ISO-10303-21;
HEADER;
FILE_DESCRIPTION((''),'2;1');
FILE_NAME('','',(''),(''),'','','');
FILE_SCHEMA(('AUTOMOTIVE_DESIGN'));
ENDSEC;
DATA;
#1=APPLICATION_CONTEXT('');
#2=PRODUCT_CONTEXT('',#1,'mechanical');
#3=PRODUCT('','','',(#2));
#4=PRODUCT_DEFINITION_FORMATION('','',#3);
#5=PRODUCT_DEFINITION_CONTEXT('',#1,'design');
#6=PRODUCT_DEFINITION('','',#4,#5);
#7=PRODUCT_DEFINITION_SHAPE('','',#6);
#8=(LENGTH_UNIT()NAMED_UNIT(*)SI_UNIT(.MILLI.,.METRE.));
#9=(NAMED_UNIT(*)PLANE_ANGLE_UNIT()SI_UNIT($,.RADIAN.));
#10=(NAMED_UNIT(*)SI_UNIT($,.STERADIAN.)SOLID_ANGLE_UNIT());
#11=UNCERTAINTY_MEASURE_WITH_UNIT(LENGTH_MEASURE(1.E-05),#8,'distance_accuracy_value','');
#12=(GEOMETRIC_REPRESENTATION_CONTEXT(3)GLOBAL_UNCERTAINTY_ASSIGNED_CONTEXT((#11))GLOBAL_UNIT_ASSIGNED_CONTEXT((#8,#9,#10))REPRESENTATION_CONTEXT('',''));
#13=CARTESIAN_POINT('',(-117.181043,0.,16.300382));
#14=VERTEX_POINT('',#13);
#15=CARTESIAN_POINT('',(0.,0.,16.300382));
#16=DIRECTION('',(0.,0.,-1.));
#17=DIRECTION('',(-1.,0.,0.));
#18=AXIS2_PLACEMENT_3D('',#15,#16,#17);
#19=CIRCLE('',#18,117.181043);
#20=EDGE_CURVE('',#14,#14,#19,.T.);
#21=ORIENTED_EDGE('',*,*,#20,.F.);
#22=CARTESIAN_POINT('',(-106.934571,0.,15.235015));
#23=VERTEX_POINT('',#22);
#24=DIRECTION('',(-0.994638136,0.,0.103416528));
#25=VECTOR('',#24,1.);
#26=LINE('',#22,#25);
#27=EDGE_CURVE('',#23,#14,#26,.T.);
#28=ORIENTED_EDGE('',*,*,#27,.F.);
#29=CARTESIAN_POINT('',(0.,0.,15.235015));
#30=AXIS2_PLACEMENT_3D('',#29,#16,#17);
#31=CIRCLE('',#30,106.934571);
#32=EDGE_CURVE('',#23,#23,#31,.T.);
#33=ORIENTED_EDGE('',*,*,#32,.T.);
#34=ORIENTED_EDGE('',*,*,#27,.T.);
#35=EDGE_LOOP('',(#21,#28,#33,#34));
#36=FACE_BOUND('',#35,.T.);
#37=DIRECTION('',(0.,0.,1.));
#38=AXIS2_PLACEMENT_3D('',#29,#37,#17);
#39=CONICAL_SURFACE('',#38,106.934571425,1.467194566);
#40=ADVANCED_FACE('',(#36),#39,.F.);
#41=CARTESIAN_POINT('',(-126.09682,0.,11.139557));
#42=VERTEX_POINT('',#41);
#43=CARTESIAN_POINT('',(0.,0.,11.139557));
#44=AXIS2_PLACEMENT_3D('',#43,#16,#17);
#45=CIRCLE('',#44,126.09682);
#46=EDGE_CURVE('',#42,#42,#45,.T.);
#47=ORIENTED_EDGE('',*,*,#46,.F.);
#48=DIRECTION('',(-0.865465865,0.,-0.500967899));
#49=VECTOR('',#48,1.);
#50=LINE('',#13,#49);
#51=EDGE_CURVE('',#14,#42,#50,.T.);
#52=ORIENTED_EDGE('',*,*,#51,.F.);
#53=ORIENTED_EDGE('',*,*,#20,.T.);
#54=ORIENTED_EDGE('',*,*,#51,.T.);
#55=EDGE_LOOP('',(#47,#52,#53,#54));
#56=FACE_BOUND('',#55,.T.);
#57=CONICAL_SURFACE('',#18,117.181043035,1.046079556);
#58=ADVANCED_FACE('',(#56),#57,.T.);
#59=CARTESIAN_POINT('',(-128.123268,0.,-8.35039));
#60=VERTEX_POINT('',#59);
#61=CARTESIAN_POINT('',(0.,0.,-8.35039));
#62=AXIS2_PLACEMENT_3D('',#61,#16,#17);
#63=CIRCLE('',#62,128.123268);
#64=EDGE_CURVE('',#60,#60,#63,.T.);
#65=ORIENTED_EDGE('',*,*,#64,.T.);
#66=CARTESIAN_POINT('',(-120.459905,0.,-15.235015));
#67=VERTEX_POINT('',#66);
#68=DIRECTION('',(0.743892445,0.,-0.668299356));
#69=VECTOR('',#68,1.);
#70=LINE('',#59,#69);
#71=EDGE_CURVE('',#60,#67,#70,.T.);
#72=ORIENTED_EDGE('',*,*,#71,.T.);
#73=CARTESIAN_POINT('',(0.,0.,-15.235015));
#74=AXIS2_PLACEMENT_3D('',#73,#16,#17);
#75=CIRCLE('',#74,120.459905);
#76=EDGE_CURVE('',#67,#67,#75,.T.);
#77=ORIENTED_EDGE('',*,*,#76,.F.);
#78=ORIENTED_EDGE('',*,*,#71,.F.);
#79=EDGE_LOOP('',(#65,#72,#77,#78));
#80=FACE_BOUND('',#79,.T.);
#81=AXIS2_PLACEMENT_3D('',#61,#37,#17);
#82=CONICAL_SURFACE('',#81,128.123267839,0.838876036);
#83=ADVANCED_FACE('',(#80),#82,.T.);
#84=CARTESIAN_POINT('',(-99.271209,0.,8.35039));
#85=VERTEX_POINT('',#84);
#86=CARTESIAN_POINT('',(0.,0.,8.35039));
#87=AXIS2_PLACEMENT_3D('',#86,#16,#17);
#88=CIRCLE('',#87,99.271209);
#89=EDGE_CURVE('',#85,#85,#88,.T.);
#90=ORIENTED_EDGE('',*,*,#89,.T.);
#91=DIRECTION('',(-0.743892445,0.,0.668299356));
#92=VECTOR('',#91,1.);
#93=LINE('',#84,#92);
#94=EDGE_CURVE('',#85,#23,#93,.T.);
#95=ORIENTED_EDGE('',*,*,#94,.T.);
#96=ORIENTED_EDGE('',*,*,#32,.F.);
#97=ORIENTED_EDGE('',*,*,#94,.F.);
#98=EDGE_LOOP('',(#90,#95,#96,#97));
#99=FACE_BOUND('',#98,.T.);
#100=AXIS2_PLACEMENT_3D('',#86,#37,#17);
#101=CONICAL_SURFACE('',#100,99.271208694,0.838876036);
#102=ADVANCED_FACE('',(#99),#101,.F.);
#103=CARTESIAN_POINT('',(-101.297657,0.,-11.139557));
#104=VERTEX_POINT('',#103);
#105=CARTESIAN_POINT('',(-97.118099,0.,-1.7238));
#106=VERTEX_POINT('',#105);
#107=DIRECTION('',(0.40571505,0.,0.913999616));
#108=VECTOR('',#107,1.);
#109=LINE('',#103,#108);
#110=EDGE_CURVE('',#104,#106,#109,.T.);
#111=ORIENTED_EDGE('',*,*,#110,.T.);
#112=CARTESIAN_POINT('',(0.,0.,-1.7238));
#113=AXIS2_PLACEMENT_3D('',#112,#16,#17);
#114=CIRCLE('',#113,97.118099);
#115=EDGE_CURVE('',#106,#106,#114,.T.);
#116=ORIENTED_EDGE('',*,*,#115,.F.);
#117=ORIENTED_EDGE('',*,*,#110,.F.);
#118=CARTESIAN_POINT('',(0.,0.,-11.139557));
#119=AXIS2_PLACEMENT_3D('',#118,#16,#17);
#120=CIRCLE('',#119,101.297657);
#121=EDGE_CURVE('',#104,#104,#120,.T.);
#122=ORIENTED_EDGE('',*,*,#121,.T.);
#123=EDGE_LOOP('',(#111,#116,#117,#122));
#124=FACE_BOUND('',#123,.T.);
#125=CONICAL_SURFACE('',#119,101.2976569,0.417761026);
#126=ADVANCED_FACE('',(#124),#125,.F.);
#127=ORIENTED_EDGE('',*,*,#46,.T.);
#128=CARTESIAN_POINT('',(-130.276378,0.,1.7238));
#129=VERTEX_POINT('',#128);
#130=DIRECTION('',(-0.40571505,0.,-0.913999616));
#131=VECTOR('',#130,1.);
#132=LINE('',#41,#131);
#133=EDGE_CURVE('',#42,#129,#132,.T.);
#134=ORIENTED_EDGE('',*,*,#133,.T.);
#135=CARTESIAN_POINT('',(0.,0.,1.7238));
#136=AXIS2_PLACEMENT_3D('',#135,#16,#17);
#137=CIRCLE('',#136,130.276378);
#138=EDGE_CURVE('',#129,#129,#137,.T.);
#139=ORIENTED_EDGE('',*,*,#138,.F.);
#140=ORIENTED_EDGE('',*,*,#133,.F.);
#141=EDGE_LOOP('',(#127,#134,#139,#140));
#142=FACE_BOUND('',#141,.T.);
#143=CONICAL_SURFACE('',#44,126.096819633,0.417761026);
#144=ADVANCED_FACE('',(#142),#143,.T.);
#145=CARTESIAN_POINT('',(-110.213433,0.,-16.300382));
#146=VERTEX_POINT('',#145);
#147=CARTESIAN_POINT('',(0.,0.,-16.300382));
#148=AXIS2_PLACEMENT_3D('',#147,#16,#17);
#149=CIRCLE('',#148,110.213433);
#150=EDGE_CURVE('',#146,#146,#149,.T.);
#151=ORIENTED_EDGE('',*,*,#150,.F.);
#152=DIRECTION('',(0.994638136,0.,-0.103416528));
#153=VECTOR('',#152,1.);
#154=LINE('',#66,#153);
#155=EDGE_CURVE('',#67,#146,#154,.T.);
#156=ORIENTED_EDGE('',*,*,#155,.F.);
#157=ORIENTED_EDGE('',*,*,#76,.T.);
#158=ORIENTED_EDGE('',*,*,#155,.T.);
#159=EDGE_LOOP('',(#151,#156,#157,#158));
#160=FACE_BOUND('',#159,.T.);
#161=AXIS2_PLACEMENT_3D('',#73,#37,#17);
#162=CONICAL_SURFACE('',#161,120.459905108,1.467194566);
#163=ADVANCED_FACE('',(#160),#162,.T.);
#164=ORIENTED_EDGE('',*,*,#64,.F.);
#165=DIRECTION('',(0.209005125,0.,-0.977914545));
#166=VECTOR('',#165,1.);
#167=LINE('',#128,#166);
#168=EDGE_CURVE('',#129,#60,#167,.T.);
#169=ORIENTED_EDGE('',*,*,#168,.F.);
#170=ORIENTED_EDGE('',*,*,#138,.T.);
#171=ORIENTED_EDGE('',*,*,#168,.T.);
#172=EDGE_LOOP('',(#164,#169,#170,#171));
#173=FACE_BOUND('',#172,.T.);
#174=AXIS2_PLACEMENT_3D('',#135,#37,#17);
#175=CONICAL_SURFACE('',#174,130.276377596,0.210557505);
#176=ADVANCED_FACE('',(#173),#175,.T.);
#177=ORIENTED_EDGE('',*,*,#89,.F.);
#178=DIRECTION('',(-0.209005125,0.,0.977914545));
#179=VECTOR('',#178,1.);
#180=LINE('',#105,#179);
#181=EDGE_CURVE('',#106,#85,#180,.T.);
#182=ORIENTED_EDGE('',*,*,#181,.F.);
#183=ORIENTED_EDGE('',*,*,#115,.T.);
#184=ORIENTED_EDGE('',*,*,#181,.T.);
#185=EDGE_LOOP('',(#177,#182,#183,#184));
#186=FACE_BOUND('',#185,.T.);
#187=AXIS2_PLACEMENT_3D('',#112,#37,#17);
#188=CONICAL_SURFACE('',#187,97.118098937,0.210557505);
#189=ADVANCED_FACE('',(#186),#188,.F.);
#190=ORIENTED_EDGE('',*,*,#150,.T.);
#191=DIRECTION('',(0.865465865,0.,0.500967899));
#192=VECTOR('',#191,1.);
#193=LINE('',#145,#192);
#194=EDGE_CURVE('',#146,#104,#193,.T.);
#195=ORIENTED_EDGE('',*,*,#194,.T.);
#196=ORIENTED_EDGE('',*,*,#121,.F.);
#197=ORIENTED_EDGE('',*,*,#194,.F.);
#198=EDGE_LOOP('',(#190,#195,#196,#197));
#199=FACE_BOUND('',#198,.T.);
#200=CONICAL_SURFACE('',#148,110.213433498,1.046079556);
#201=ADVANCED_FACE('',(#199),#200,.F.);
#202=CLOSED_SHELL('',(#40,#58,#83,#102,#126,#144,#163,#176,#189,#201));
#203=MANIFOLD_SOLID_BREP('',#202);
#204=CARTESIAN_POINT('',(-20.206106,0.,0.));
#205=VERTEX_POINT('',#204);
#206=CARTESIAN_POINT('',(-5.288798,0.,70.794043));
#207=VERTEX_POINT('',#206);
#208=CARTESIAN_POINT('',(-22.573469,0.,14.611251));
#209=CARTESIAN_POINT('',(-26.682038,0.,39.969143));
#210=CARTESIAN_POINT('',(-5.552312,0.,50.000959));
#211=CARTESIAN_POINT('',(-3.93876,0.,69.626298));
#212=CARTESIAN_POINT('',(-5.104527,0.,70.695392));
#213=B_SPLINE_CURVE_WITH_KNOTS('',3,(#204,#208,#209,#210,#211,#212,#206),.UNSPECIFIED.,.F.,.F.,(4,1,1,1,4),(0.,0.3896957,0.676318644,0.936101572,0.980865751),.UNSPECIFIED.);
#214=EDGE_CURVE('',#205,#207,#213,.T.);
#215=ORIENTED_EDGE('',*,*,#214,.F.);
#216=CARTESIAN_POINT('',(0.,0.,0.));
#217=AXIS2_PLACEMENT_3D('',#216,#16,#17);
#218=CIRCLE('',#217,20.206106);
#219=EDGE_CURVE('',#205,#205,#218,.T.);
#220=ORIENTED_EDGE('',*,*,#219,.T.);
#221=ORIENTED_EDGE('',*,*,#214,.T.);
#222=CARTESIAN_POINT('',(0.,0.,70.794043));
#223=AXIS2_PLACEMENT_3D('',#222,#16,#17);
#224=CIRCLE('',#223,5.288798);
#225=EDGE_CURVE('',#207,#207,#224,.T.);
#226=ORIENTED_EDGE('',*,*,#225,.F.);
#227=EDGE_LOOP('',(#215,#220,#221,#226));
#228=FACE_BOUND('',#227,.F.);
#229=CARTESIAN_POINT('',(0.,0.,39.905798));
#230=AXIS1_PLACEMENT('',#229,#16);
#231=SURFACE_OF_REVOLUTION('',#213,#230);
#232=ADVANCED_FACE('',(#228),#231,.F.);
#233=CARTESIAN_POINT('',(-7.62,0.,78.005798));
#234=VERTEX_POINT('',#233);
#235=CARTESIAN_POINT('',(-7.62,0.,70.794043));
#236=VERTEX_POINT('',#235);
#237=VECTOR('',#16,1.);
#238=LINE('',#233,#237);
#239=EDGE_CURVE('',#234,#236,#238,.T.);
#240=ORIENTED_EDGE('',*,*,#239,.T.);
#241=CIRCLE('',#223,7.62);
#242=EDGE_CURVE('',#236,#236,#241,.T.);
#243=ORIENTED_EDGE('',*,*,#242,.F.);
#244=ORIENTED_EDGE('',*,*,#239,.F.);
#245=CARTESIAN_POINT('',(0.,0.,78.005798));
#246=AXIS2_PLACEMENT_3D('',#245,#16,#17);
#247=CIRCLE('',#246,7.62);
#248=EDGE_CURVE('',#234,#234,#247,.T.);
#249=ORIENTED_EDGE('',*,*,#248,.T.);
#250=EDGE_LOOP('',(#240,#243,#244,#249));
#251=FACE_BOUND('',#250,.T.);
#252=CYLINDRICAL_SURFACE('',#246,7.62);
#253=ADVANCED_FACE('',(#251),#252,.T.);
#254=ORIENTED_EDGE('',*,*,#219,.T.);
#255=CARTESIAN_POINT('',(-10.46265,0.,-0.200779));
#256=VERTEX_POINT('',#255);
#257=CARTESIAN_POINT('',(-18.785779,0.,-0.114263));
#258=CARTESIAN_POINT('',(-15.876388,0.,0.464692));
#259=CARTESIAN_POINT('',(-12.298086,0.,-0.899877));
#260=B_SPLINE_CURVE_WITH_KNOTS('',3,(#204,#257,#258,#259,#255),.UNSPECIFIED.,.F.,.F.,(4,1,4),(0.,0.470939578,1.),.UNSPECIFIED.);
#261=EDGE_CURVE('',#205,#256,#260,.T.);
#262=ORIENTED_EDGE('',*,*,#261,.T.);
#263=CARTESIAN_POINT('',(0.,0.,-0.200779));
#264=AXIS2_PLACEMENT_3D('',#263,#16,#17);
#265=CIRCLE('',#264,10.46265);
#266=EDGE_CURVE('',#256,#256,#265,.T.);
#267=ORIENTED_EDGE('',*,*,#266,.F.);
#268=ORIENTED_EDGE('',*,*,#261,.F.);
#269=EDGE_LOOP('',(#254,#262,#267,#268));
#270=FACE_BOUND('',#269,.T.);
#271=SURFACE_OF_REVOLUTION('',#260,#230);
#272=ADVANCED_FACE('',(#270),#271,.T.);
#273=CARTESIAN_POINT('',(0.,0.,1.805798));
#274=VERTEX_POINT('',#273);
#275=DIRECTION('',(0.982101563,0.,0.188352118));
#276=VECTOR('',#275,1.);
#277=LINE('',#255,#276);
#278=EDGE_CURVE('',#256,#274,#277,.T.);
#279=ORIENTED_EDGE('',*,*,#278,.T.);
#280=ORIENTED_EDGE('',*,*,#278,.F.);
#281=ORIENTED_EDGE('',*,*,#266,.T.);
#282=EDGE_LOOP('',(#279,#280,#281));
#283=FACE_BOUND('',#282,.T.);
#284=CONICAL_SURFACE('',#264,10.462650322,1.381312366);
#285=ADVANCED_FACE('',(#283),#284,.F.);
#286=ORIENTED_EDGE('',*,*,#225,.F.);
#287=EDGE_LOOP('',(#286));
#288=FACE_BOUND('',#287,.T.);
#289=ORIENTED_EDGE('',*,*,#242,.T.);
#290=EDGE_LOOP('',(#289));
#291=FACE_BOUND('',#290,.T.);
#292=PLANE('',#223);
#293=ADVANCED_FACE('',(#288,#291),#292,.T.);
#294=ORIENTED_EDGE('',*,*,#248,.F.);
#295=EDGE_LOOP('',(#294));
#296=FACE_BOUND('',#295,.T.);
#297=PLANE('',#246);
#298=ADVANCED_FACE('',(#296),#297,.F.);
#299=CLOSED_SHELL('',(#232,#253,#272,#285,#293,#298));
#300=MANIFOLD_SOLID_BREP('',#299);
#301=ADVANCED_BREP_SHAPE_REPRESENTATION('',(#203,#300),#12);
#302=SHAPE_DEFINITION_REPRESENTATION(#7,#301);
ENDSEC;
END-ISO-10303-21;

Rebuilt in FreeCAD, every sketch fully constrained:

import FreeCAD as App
import Part
import Sketcher
Q = App.Units.Quantity


def add_polygon(sketch, points):
    """Adds a closed chain of lines whose ends are joined by coincident constraints."""
    first, n = sketch.GeometryCount, len(points)
    for a, b in zip(points, points[1:] + points[:1]):
        sketch.addGeometry(Part.LineSegment(App.Vector(*a, 0), App.Vector(*b, 0)), False)
    for i in range(n):
        sketch.addConstraint(Sketcher.Constraint("Coincident", first + i, 2, first + (i + 1) % n, 1))

doc = App.newDocument("Part")
body = doc.addObject("PartDesign::Body", "Body")

# Sketch on XZ plane
sketch1 = doc.addObject("Sketcher::SketchObject", "Sketch")
body.addObject(sketch1)
sketch1.AttachmentSupport = (doc.XZ_Plane, [""])
sketch1.MapMode = "FlatFace"
sketch1.addGeometry(Part.BSplineCurve([App.Vector(-20.206106, 0, 0), App.Vector(-22.573469, 14.611251, 0), App.Vector(-26.682038, 39.969143, 0), App.Vector(-5.552312, 50.000959, 0), App.Vector(-3.93876, 69.626298, 0), App.Vector(-5.104527, 70.695392, 0), App.Vector(-5.288798, 70.794043, 0)], [4, 1, 1, 1, 4], [0, 0.3896957, 0.676318644, 0.936101572, 0.980865751], False, 3, [1, 1, 1, 1, 1, 1, 1], False), False)
sketch1.addGeometry(Part.BSplineCurve([App.Vector(-20.206106, 0, 0), App.Vector(-18.785779, -0.114263, 0), App.Vector(-15.876388, 0.464692, 0), App.Vector(-12.298086, -0.899877, 0), App.Vector(-10.46265, -0.200779, 0)], [4, 1, 4], [0, 0.470939578, 1], False, 3, [1, 1, 1, 1, 1], False), False)
sketch1.addGeometry(Part.LineSegment(App.Vector(-10.46265, -0.200779, 0), App.Vector(0, 1.805798, 0)), False)
sketch1.addGeometry(Part.LineSegment(App.Vector(0, 1.805798, 0), App.Vector(0, 78.005798, 0)), False)
sketch1.addGeometry(Part.LineSegment(App.Vector(0, 78.005798, 0), App.Vector(-7.62, 78.005798, 0)), False)
sketch1.addGeometry(Part.LineSegment(App.Vector(-7.62, 78.005798, 0), App.Vector(-7.62, 70.794043, 0)), False)
sketch1.addGeometry(Part.LineSegment(App.Vector(-7.62, 70.794043, 0), App.Vector(-5.288798, 70.794043, 0)), False)
sketch1.addConstraint(Sketcher.Constraint("Block", 0))
sketch1.addConstraint(Sketcher.Constraint("Block", 1))
sketch1.addConstraint(Sketcher.Constraint("Coincident", 1, 2, 2, 1))
sketch1.addConstraint(Sketcher.Constraint("Coincident", 2, 2, 3, 1))
sketch1.addConstraint(Sketcher.Constraint("Coincident", 3, 2, 4, 1))
sketch1.addConstraint(Sketcher.Constraint("Coincident", 4, 2, 5, 1))
sketch1.addConstraint(Sketcher.Constraint("Coincident", 5, 2, 6, 1))
sketch1.addConstraint(Sketcher.Constraint("Coincident", 6, 2, 0, 2))
sketch1.addConstraint(Sketcher.Constraint("Vertical", 3))
sketch1.addConstraint(Sketcher.Constraint("Horizontal", 4))
sketch1.addConstraint(Sketcher.Constraint("Vertical", 5))
sketch1.addConstraint(Sketcher.Constraint("Horizontal", 6))
sketch1.addConstraint(Sketcher.Constraint("PointOnObject", 2, 2, -2))
sketch1.addConstraint(Sketcher.Constraint("DistanceY", 3, 1, 3, 2, Q("3 in")))
sketch1.addConstraint(Sketcher.Constraint("DistanceX", 4, 2, 4, 1, Q("0.3 in")))
sketch1.addConstraint(Sketcher.Constraint("DistanceY", -1, 1, 2, 2, Q("1.805798 mm")))
revolution = doc.addObject("PartDesign::Revolution", "Revolution")
body.addObject(revolution)
revolution.Profile = sketch1
revolution.ReferenceAxis = (sketch1, ["V_Axis"])
revolution.Angle = 360
body2 = doc.addObject("PartDesign::Body", "Body001")

# Sketch on XZ plane
sketch2 = doc.addObject("Sketcher::SketchObject", "Sketch001")
body2.addObject(sketch2)
sketch2.AttachmentSupport = (doc.getObject("XZ_Plane001"), [""])
sketch2.MapMode = "FlatFace"
add_polygon(sketch2, [(-110.213433, -16.300382), (-101.297657, -11.139557), (-97.118099, -1.7238), (-99.271209, 8.35039), (-106.934571, 15.235015), (-117.181043, 16.300382), (-126.09682, 11.139557), (-130.276378, 1.7238), (-128.123268, -8.35039), (-120.459905, -15.235015)])  # lines 0-9
sketch2.addConstraint(Sketcher.Constraint("Parallel", 0, 5))
sketch2.addConstraint(Sketcher.Constraint("Parallel", 1, 6))
sketch2.addConstraint(Sketcher.Constraint("Parallel", 2, 7))
sketch2.addConstraint(Sketcher.Constraint("Parallel", 3, 8))
sketch2.addConstraint(Sketcher.Constraint("Parallel", 4, 9))
sketch2.addConstraint(Sketcher.Constraint("Equal", 0, 1))
sketch2.addConstraint(Sketcher.Constraint("Equal", 1, 2))
sketch2.addConstraint(Sketcher.Constraint("Equal", 2, 3))
sketch2.addConstraint(Sketcher.Constraint("Equal", 3, 4))
sketch2.addConstraint(Sketcher.Constraint("Equal", 4, 5))
sketch2.addConstraint(Sketcher.Constraint("Equal", 5, 6))
sketch2.addConstraint(Sketcher.Constraint("Equal", 6, 7))
sketch2.addConstraint(Sketcher.Constraint("DistanceX", 1, 2, -1, 1, Q("97.118099 mm")))
sketch2.addConstraint(Sketcher.Constraint("DistanceY", 1, 2, -1, 1, Q("1.7238 mm")))
sketch2.addConstraint(Sketcher.Constraint("DistanceY", -1, 1, 6, 2, Q("1.7238 mm")))
sketch2.addConstraint(Sketcher.Constraint("DistanceX", 2, 2, -1, 1, Q("99.271209 mm")))
sketch2.addConstraint(Sketcher.Constraint("DistanceY", -1, 1, 2, 2, Q("8.35039 mm")))
sketch2.addConstraint(Sketcher.Constraint("DistanceX", 3, 2, -1, 1, Q("106.934571 mm")))
sketch2.addConstraint(Sketcher.Constraint("DistanceY", -1, 1, 4, 2, Q("16.300382 mm")))
sketch2.addConstraint(Sketcher.Constraint("DistanceX", 5, 2, -1, 1, Q("126.09682 mm")))
revolution2 = doc.addObject("PartDesign::Revolution", "Revolution001")
body2.addObject(revolution2)
revolution2.Profile = sketch2
revolution2.ReferenceAxis = (sketch2, ["V_Axis"])
revolution2.Angle = 360

doc.recompute()
